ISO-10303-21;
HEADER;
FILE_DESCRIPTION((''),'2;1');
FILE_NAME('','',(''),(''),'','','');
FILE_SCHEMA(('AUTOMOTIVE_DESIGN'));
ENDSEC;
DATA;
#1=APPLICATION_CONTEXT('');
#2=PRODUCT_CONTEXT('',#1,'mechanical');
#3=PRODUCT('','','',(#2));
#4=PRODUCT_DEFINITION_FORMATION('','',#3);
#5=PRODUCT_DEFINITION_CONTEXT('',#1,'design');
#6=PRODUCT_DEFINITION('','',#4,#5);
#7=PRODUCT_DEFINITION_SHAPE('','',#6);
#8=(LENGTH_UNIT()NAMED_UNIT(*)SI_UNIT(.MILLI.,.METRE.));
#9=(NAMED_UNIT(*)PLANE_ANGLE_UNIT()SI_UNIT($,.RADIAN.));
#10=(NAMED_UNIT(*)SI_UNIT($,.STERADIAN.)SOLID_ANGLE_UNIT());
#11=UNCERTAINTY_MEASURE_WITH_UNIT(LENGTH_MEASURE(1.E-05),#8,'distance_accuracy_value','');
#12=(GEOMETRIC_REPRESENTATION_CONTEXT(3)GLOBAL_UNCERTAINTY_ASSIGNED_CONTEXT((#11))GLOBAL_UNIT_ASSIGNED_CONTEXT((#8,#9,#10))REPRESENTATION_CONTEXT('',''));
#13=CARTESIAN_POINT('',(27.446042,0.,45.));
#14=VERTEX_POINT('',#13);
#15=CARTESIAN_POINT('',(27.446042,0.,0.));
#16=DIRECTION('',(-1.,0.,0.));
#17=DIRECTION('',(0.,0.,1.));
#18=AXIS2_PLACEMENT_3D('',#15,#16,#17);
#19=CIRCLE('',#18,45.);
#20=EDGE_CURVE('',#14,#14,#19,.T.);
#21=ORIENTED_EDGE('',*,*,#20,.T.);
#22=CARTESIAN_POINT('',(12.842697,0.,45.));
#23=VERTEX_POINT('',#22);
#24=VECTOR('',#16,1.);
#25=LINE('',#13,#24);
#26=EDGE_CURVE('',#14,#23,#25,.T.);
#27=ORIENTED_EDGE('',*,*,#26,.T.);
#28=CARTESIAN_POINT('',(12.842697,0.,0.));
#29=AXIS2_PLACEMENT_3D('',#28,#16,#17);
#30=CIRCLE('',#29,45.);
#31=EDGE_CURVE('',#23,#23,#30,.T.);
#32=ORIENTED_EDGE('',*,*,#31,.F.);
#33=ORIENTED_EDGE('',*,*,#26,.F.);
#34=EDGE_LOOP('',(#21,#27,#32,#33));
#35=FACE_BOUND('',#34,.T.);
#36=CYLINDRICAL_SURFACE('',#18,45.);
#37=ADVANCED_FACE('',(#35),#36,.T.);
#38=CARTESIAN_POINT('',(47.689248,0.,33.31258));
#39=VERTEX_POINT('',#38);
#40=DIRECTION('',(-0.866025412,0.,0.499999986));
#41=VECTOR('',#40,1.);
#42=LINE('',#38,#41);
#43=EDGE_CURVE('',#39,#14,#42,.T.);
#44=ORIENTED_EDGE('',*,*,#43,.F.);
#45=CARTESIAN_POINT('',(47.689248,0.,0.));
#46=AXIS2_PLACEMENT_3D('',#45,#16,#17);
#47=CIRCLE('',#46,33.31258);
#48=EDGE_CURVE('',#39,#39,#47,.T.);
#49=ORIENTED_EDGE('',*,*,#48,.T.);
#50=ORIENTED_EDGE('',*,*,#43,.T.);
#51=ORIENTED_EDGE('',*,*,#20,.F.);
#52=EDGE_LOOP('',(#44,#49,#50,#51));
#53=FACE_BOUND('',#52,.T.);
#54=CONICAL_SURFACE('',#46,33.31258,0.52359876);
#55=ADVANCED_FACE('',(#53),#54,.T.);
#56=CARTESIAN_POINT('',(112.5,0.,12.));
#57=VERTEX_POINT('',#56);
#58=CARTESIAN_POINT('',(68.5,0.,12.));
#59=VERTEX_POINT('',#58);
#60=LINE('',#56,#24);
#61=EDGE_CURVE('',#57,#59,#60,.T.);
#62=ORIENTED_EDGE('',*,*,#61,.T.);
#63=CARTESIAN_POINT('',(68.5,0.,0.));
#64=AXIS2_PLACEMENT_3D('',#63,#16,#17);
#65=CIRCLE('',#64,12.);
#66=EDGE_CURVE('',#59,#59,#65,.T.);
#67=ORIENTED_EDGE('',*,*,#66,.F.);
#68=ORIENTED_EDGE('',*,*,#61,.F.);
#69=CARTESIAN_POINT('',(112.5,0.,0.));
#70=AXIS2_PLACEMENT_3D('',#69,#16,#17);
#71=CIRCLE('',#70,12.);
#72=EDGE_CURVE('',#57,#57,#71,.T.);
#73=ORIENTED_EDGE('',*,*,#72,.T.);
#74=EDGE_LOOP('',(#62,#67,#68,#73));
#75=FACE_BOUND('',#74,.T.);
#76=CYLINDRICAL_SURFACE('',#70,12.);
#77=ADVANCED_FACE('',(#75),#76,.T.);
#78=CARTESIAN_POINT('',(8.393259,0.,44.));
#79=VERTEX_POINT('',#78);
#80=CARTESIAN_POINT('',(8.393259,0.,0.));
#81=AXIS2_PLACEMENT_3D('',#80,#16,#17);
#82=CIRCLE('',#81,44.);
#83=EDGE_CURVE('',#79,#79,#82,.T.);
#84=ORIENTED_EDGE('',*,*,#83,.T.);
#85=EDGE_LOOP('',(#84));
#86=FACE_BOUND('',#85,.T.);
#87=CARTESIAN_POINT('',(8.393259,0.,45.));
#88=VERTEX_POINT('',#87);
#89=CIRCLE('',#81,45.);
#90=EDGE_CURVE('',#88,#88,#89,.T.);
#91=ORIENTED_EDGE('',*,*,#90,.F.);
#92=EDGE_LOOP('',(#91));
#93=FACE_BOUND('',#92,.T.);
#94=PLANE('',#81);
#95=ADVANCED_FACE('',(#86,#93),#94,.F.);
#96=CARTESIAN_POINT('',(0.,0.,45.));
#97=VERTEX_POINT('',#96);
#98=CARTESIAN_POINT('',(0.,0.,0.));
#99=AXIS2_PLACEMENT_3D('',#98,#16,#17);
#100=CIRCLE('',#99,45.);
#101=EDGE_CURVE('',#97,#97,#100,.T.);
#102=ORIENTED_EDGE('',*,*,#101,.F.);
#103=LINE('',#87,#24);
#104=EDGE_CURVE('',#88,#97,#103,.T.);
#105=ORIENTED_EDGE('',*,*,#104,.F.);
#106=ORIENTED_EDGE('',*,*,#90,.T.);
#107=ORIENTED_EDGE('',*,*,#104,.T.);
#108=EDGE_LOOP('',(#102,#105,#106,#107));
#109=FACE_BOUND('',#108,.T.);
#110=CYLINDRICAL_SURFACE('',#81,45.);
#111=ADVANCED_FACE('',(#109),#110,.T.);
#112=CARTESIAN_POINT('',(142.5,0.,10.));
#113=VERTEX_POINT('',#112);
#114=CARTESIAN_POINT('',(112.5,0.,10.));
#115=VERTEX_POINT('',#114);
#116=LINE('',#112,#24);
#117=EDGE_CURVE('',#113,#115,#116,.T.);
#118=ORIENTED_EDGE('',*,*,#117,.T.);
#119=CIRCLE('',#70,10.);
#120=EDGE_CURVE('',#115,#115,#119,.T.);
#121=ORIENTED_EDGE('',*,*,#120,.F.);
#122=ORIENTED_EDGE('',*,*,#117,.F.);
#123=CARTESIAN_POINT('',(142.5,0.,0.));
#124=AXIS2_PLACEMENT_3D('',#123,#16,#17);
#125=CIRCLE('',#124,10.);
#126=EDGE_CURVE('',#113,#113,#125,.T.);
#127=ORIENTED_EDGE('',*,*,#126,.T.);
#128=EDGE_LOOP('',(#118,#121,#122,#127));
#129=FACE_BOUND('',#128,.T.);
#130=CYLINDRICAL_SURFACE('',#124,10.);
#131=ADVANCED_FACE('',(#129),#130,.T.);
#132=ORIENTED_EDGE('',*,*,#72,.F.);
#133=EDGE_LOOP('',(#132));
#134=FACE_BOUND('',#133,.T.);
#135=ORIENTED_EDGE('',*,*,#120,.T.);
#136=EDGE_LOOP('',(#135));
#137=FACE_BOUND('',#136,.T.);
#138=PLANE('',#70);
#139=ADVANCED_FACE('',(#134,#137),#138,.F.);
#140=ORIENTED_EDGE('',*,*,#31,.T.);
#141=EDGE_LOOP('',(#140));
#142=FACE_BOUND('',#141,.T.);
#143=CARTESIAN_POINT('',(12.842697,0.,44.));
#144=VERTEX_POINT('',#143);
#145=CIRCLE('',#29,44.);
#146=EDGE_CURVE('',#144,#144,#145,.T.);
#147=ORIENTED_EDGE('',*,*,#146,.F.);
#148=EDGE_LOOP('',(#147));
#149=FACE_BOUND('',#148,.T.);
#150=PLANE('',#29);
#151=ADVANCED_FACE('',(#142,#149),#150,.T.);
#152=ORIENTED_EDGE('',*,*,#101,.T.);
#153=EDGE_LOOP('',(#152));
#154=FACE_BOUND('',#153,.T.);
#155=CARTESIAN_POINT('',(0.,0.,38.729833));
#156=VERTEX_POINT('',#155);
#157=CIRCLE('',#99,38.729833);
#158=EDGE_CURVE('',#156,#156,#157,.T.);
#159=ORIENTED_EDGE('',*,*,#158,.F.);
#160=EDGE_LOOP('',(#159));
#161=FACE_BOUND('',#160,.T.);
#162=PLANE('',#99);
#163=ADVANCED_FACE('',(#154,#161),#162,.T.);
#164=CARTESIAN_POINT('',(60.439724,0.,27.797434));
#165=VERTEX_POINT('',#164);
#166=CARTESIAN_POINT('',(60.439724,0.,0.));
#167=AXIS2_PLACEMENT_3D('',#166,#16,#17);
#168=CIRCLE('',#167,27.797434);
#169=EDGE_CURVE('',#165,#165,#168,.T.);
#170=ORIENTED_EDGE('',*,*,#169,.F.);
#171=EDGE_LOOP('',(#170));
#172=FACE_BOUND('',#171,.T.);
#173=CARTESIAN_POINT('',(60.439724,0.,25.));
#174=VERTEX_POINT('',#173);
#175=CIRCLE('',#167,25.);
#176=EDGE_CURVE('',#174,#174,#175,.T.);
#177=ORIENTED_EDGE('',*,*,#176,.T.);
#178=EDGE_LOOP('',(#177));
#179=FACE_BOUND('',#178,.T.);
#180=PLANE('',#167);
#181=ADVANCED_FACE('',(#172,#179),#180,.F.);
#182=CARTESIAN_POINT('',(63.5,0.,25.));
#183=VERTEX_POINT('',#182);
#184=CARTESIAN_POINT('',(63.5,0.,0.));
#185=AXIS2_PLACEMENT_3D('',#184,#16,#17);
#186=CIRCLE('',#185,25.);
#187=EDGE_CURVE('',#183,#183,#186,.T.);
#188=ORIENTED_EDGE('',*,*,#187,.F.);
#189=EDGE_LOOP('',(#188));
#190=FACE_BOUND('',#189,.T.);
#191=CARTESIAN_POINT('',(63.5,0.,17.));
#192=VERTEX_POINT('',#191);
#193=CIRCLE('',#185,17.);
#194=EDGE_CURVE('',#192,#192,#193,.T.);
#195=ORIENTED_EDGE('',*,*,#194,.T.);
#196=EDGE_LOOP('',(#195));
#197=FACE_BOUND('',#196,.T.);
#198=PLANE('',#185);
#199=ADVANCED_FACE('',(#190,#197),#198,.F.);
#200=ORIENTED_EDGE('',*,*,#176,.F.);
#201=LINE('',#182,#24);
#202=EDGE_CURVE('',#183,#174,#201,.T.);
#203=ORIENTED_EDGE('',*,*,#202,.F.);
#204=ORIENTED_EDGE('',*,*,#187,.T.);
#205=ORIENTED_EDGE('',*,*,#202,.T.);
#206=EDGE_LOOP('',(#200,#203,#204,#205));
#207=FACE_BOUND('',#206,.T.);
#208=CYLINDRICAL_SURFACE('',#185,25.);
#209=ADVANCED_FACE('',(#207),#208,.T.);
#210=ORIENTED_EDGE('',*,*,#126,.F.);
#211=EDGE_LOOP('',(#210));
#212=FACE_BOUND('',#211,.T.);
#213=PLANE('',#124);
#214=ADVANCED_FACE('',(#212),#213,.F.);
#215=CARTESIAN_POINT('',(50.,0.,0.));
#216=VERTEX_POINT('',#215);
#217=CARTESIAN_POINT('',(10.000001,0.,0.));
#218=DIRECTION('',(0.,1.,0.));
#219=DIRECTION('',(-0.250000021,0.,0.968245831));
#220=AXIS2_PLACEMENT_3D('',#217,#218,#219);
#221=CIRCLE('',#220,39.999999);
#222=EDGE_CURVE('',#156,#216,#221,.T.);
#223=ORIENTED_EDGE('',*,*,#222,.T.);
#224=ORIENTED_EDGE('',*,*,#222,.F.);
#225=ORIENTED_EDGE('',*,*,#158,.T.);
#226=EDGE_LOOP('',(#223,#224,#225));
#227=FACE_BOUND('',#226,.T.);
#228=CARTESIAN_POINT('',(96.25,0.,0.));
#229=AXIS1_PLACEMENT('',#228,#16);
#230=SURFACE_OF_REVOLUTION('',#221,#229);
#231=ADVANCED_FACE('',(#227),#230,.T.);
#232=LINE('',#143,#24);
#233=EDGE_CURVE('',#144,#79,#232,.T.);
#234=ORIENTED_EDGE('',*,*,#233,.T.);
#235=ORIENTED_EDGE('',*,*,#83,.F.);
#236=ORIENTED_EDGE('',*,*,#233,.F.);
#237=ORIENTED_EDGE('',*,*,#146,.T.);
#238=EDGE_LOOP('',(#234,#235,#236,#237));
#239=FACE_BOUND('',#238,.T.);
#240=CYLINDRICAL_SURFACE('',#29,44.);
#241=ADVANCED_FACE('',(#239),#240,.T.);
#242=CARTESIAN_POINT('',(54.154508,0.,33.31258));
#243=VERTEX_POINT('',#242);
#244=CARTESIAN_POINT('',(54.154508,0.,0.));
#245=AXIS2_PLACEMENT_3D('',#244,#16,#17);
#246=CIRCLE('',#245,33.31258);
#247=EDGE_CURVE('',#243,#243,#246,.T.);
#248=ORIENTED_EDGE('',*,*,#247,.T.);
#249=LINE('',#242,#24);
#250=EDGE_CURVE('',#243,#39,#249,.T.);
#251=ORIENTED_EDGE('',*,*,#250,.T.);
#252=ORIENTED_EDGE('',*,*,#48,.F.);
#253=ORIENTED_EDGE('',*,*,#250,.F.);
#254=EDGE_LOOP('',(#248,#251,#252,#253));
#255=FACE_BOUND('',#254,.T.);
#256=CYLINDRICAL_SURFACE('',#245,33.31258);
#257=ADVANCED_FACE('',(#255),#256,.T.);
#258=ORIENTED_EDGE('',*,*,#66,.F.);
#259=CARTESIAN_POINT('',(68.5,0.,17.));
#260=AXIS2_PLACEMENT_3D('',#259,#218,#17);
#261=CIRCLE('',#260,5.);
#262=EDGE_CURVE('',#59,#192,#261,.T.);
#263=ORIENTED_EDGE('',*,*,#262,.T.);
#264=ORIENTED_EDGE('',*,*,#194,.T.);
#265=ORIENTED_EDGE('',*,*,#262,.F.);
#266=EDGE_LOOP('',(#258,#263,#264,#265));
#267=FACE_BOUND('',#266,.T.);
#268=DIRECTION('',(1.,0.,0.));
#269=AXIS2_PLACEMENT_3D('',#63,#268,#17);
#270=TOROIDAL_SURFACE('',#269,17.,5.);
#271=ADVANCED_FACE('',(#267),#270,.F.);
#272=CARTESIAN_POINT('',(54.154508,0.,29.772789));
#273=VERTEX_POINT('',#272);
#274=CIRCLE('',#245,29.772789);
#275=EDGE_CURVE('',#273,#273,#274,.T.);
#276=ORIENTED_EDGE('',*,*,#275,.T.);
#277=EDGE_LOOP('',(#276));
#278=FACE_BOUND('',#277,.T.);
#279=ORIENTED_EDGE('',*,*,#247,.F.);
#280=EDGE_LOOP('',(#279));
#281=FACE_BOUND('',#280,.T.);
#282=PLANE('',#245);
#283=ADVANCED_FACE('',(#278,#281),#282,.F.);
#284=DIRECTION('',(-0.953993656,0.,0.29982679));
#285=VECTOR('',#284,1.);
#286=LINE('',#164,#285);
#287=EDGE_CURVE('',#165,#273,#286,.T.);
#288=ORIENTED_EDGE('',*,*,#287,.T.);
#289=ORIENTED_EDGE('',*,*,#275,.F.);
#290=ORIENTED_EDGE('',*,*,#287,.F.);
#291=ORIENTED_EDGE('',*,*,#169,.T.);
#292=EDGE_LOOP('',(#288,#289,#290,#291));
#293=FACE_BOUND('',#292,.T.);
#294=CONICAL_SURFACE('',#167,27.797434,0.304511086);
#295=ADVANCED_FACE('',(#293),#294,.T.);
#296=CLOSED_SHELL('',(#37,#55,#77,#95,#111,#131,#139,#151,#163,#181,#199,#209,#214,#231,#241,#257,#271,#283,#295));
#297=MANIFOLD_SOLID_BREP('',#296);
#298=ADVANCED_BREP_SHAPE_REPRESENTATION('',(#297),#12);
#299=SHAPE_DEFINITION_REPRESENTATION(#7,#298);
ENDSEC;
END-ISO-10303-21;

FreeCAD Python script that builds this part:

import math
import FreeCAD as App
import Part
import Sketcher

V = App.Vector
Q = App.Units.Quantity


def edges_at(feature, points):
    """Names of the edges that pass closest to the given points."""
    edges = feature.Shape.Edges
    near = lambda p: min(range(len(edges)), key=lambda i: edges[i].distToShape(Part.Vertex(*p))[0])
    return sorted({f"Edge{near(p) + 1}" for p in points})

doc = App.newDocument("Part")
body = doc.addObject("PartDesign::Body", "Body")

# Sketch on XZ plane
sketch1 = doc.addObject("Sketcher::SketchObject", "Sketch")
body.addObject(sketch1)
sketch1.AttachmentSupport = (doc.XZ_Plane, [""])
sketch1.MapMode = "FlatFace"
sketch1.addGeometry(Part.LineSegment(V(8.4, 45, 0), V(0, 45, 0)), False)
sketch1.addGeometry(Part.LineSegment(V(0, 45, 0), V(0, 38.7, 0)), False)
sketch1.addGeometry(Part.ArcOfCircle(Part.Circle(V(10, 0, 0), V(0, 0, 1), 40), math.radians(0), math.radians(104)), False)
sketch1.addGeometry(Part.LineSegment(V(50, 0, 0), V(142.5, 0, 0)), False)
sketch1.addGeometry(Part.LineSegment(V(142.5, 0, 0), V(142.5, 10, 0)), False)
sketch1.addGeometry(Part.LineSegment(V(142.5, 10, 0), V(112.5, 10, 0)), False)
sketch1.addGeometry(Part.LineSegment(V(112.5, 10, 0), V(112.5, 12, 0)), False)
sketch1.addGeometry(Part.LineSegment(V(112.5, 12, 0), V(63.5, 12, 0)), False)
sketch1.addGeometry(Part.LineSegment(V(63.5, 12, 0), V(63.5, 25, 0)), False)
sketch1.addGeometry(Part.LineSegment(V(63.5, 25, 0), V(60.4, 25, 0)), False)
sketch1.addGeometry(Part.LineSegment(V(60.4, 25, 0), V(60.4, 27.8, 0)), False)
sketch1.addGeometry(Part.LineSegment(V(60.4, 27.8, 0), V(54.2, 29.8, 0)), False)
sketch1.addGeometry(Part.LineSegment(V(54.2, 29.8, 0), V(54.2, 33.3, 0)), False)
sketch1.addGeometry(Part.LineSegment(V(54.2, 33.3, 0), V(47.7, 33.3, 0)), False)
sketch1.addGeometry(Part.LineSegment(V(47.7, 33.3, 0), V(27.4, 45, 0)), False)
sketch1.addGeometry(Part.LineSegment(V(27.4, 45, 0), V(12.8, 45, 0)), False)
sketch1.addGeometry(Part.LineSegment(V(12.8, 45, 0), V(12.8, 44, 0)), False)
sketch1.addGeometry(Part.LineSegment(V(12.8, 44, 0), V(8.4, 44, 0)), False)
sketch1.addGeometry(Part.LineSegment(V(8.4, 44, 0), V(8.4, 45, 0)), False)
sketch1.addConstraint(Sketcher.Constraint("Coincident", 0, 2, 1, 1))
sketch1.addConstraint(Sketcher.Constraint("Coincident", 1, 2, 2, 2))
sketch1.addConstraint(Sketcher.Constraint("Coincident", 2, 1, 3, 1))
sketch1.addConstraint(Sketcher.Constraint("Coincident", 3, 2, 4, 1))
sketch1.addConstraint(Sketcher.Constraint("Coincident", 4, 2, 5, 1))
sketch1.addConstraint(Sketcher.Constraint("Coincident", 5, 2, 6, 1))
sketch1.addConstraint(Sketcher.Constraint("Coincident", 6, 2, 7, 1))
sketch1.addConstraint(Sketcher.Constraint("Coincident", 7, 2, 8, 1))
sketch1.addConstraint(Sketcher.Constraint("Coincident", 8, 2, 9, 1))
sketch1.addConstraint(Sketcher.Constraint("Coincident", 9, 2, 10, 1))
sketch1.addConstraint(Sketcher.Constraint("Coincident", 10, 2, 11, 1))
sketch1.addConstraint(Sketcher.Constraint("Coincident", 11, 2, 12, 1))
sketch1.addConstraint(Sketcher.Constraint("Coincident", 12, 2, 13, 1))
sketch1.addConstraint(Sketcher.Constraint("Coincident", 13, 2, 14, 1))
sketch1.addConstraint(Sketcher.Constraint("Coincident", 14, 2, 15, 1))
sketch1.addConstraint(Sketcher.Constraint("Coincident", 15, 2, 16, 1))
sketch1.addConstraint(Sketcher.Constraint("Coincident", 16, 2, 17, 1))
sketch1.addConstraint(Sketcher.Constraint("Coincident", 17, 2, 18, 1))
sketch1.addConstraint(Sketcher.Constraint("Coincident", 18, 2, 0, 1))
sketch1.addConstraint(Sketcher.Constraint("Horizontal", 0))
sketch1.addConstraint(Sketcher.Constraint("Vertical", 1))
sketch1.addConstraint(Sketcher.Constraint("Horizontal", 3))
sketch1.addConstraint(Sketcher.Constraint("Vertical", 4))
sketch1.addConstraint(Sketcher.Constraint("Horizontal", 5))
sketch1.addConstraint(Sketcher.Constraint("Vertical", 6))
sketch1.addConstraint(Sketcher.Constraint("Horizontal", 7))
sketch1.addConstraint(Sketcher.Constraint("Vertical", 8))
sketch1.addConstraint(Sketcher.Constraint("Horizontal", 9))
sketch1.addConstraint(Sketcher.Constraint("Vertical", 10))
sketch1.addConstraint(Sketcher.Constraint("Vertical", 12))
sketch1.addConstraint(Sketcher.Constraint("Horizontal", 13))
sketch1.addConstraint(Sketcher.Constraint("Horizontal", 15))
sketch1.addConstraint(Sketcher.Constraint("Vertical", 16))
sketch1.addConstraint(Sketcher.Constraint("Horizontal", 17))
sketch1.addConstraint(Sketcher.Constraint("Vertical", 18))
sketch1.addConstraint(Sketcher.Constraint("PointOnObject", 2, 3, -1))
sketch1.addConstraint(Sketcher.Constraint("PointOnObject", 0, 2, -2))
sketch1.addConstraint(Sketcher.Constraint("PointOnObject", 2, 1, -1))
sketch1.addConstraint(Sketcher.Constraint("Horizontal", 0, 2, 14, 2))
sketch1.addConstraint(Sketcher.Constraint("Radius", 2, Q("39.999999 mm")))
sketch1.addConstraint(Sketcher.Constraint("DistanceX", 5, 2, 5, 1, Q("30 mm")))
sketch1.addConstraint(Sketcher.Constraint("DistanceX", 7, 2, 7, 1, Q("49 mm")))
sketch1.addConstraint(Sketcher.Constraint("DistanceY", 4, 1, 4, 2, Q("10 mm")))
sketch1.addConstraint(Sketcher.Constraint("DistanceY", 6, 1, 6, 2, Q("2 mm")))
sketch1.addConstraint(Sketcher.Constraint("DistanceY", 8, 1, 8, 2, Q("13 mm")))
sketch1.addConstraint(Sketcher.Constraint("DistanceY", 16, 2, 16, 1, Q("1 mm")))
sketch1.addConstraint(Sketcher.Constraint("Angle", 14, Q("150.000001 deg")))
sketch1.addConstraint(Sketcher.Constraint("DistanceX", 3, 1, 3, 2, Q("92.5 mm")))
sketch1.addConstraint(Sketcher.Constraint("DistanceX", -1, 1, 2, 3, Q("10.000001 mm")))
sketch1.addConstraint(Sketcher.Constraint("DistanceY", -1, 1, 0, 2, Q("45 mm")))
sketch1.addConstraint(Sketcher.Constraint("DistanceX", 0, 2, 0, 1, Q("8.393259 mm")))
sketch1.addConstraint(Sketcher.Constraint("DistanceX", 13, 2, 13, 1, Q("6.46526 mm")))
sketch1.addConstraint(Sketcher.Constraint("DistanceY", 12, 1, 12, 2, Q("3.539791 mm")))
sketch1.addConstraint(Sketcher.Constraint("Distance", 11, Q("6.588321 mm")))
sketch1.addConstraint(Sketcher.Constraint("Distance", 14, Q("23.374841 mm")))
sketch1.addConstraint(Sketcher.Constraint("DistanceX", 9, 2, 9, 1, Q("3.060276 mm")))
sketch1.addConstraint(Sketcher.Constraint("DistanceX", 15, 2, 15, 1, Q("14.603345 mm")))
sketch1.addConstraint(Sketcher.Constraint("DistanceX", 17, 2, 17, 1, Q("4.449438 mm")))
revolution = doc.addObject("PartDesign::Revolution", "Revolution")
body.addObject(revolution)
revolution.Profile = sketch1
revolution.ReferenceAxis = (sketch1, ["H_Axis"])
revolution.Angle = 360
doc.recompute()

fillet = doc.addObject("PartDesign::Fillet", "Fillet")
body.addObject(fillet)
fillet.Base = (revolution, edges_at(revolution, [(63.5, 0, -12)]))
fillet.Radius = 5

doc.recompute()
